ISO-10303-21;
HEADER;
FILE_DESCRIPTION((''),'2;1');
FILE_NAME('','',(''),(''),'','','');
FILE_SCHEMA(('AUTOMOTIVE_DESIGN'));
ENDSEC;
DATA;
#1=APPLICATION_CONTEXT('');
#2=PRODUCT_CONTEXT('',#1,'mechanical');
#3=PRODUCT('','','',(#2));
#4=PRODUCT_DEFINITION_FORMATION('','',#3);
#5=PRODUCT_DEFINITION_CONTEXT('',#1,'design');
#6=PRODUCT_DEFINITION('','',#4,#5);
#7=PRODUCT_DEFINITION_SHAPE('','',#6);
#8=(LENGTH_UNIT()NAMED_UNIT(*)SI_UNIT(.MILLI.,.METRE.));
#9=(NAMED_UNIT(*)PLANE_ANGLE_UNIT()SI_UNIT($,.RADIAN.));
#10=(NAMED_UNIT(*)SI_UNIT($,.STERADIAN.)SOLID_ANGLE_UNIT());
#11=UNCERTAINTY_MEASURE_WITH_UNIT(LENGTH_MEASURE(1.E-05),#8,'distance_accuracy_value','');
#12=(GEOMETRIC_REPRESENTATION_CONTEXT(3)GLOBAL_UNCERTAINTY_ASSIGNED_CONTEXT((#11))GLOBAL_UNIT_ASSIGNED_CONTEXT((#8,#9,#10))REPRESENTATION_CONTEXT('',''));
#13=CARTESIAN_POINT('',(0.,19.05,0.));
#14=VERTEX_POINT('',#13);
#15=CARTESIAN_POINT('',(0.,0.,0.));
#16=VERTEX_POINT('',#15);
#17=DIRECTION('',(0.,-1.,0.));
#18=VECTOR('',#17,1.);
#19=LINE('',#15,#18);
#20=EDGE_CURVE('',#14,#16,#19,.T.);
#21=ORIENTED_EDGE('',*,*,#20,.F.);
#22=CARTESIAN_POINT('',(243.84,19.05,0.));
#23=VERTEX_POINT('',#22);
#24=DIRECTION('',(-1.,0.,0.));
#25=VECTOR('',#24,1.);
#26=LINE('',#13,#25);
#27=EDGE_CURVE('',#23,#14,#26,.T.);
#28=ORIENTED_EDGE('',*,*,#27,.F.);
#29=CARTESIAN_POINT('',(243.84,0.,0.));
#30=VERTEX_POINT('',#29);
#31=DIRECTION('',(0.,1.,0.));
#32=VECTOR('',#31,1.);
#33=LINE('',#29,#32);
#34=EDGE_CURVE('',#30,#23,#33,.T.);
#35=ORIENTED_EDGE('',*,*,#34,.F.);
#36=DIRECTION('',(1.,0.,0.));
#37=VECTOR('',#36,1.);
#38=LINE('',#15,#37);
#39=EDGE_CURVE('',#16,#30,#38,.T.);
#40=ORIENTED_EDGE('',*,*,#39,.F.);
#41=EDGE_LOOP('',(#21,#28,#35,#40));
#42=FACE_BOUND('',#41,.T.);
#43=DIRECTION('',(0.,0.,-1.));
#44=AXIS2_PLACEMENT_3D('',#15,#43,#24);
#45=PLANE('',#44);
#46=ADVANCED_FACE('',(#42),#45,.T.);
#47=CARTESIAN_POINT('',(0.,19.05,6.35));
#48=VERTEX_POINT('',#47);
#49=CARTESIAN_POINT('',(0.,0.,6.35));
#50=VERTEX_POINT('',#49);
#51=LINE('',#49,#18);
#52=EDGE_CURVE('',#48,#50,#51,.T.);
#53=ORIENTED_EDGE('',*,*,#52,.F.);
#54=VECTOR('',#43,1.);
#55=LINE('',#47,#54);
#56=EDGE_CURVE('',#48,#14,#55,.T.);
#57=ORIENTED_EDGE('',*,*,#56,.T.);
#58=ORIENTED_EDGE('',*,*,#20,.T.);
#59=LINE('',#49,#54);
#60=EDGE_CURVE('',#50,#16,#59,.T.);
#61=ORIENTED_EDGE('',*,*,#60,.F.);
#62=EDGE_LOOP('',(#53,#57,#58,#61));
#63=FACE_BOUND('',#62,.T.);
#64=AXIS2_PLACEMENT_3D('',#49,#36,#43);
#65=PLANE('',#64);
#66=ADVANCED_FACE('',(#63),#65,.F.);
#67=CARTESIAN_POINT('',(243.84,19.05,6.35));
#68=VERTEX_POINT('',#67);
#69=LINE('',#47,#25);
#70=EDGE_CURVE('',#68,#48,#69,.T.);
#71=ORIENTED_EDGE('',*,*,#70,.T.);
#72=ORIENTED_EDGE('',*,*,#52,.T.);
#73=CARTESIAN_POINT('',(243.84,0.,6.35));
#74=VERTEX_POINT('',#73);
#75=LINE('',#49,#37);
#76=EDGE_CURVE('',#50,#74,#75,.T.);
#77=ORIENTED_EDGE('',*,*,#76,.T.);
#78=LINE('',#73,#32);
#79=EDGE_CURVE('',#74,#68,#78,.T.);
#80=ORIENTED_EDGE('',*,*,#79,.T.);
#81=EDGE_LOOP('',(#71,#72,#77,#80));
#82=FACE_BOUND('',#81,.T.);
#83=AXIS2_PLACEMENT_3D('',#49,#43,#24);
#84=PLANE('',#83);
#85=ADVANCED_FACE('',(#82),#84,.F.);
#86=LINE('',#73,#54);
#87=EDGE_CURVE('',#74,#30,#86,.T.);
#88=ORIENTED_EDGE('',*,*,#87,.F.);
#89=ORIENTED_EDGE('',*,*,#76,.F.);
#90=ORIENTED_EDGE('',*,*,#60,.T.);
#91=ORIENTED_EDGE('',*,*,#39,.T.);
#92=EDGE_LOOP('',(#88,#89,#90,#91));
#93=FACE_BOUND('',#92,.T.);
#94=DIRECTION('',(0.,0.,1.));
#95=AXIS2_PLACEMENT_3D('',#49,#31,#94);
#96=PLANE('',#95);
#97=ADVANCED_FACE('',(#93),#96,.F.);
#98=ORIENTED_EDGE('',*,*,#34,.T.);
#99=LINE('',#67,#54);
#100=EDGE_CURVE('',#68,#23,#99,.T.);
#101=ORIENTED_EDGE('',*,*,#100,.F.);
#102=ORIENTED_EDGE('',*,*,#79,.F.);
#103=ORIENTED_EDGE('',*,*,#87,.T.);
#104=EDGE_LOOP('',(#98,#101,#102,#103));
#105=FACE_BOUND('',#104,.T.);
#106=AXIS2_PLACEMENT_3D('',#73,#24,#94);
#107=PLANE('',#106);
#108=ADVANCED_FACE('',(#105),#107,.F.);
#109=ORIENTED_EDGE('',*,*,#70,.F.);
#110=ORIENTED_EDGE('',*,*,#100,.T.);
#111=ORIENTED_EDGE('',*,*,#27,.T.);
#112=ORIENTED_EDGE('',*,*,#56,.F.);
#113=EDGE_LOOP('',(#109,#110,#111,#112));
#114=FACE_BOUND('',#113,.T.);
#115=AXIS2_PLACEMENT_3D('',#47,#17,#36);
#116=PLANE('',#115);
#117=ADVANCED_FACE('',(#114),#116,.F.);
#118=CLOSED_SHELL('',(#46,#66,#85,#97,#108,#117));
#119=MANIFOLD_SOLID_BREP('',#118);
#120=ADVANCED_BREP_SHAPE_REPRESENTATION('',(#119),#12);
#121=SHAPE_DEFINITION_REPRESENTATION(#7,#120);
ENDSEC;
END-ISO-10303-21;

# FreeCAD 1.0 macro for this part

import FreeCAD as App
import Part
import Sketcher
Q = App.Units.Quantity


def add_polygon(sketch, points):
    """Adds a closed chain of lines whose ends are joined by coincident constraints."""
    first, n = sketch.GeometryCount, len(points)
    for a, b in zip(points, points[1:] + points[:1]):
        sketch.addGeometry(Part.LineSegment(App.Vector(*a, 0), App.Vector(*b, 0)), False)
    for i in range(n):
        sketch.addConstraint(Sketcher.Constraint("Coincident", first + i, 2, first + (i + 1) % n, 1))

doc = App.newDocument("Part")
body = doc.addObject("PartDesign::Body", "Body")

# Sketch on XY plane
sketch1 = doc.addObject("Sketcher::SketchObject", "Sketch")
body.addObject(sketch1)
sketch1.AttachmentSupport = (doc.XY_Plane, [""])
sketch1.MapMode = "FlatFace"
add_polygon(sketch1, [(0, 19), (0, 0), (244, 0), (244, 19)])  # lines 0-3
sketch1.addConstraint([
    Sketcher.Constraint("Vertical", 0),
    Sketcher.Constraint("Horizontal", 1),
    Sketcher.Constraint("Vertical", 2),
    Sketcher.Constraint("Horizontal", 3),
    Sketcher.Constraint("Coincident", 0, 2, -1, 1),
    Sketcher.Constraint("DistanceX", 1, 1, 1, 2, Q("9.6 in")),
    Sketcher.Constraint("DistanceY", 0, 2, 0, 1, Q("0.75 in")),
])
pad1 = doc.addObject("PartDesign::Pad", "Pad")
body.addObject(pad1)
pad1.Profile = sketch1
pad1.Length = Q("0.25 in")

doc.recompute()
